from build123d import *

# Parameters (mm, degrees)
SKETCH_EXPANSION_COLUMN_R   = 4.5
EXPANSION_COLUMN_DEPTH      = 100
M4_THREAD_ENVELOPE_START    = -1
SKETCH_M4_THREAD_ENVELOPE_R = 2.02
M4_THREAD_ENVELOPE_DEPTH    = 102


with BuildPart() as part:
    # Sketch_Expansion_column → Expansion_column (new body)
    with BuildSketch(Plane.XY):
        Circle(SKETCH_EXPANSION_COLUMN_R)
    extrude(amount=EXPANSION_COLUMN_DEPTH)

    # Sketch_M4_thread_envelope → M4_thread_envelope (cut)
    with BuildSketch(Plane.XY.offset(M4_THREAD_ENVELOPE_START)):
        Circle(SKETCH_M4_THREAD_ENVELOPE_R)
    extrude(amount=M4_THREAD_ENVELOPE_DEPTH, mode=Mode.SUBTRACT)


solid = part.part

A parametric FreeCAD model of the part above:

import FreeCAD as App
import Part
import Sketcher
from FreeCAD import Vector

doc = App.newDocument("Part")
body = doc.addObject("PartDesign::Body", "Body")

sketch1 = body.newObject("Sketcher::SketchObject", "Sketch")
sketch1.AttachmentSupport = (doc.getObject("XY_Plane"), [""])
sketch1.MapMode = "FlatFace"
sketch1.addGeometry(Part.Circle(Vector(0, 0, 0), Vector(0, 0, 1), 4.5), False)
sketch1.addConstraint([
    Sketcher.Constraint("Coincident", 0, 3, -1, 1),
    Sketcher.Constraint("Diameter", 0, 9.0),
])
pad1 = body.newObject("PartDesign::Pad", "Pad")
pad1.Profile = sketch1
pad1.Length = 100

sketch2 = body.newObject("Sketcher::SketchObject", "Sketch001")
sketch2.AttachmentSupport = (doc.getObject("XY_Plane"), [""])
sketch2.MapMode = "FlatFace"
sketch2.AttachmentOffset = App.Placement(Vector(0, 0, -1), App.Rotation())
sketch2.addGeometry(Part.Circle(Vector(0, 0, 0), Vector(0, 0, 1), 2), False)
sketch2.addConstraint([
    Sketcher.Constraint("Coincident", 0, 3, -1, 1),
    Sketcher.Constraint("Diameter", 0, 4.04),
])
pocket1 = body.newObject("PartDesign::Pocket", "Pocket")
pocket1.Profile = sketch2
pocket1.Length = 102
pocket1.Reversed = True

doc.recompute()
